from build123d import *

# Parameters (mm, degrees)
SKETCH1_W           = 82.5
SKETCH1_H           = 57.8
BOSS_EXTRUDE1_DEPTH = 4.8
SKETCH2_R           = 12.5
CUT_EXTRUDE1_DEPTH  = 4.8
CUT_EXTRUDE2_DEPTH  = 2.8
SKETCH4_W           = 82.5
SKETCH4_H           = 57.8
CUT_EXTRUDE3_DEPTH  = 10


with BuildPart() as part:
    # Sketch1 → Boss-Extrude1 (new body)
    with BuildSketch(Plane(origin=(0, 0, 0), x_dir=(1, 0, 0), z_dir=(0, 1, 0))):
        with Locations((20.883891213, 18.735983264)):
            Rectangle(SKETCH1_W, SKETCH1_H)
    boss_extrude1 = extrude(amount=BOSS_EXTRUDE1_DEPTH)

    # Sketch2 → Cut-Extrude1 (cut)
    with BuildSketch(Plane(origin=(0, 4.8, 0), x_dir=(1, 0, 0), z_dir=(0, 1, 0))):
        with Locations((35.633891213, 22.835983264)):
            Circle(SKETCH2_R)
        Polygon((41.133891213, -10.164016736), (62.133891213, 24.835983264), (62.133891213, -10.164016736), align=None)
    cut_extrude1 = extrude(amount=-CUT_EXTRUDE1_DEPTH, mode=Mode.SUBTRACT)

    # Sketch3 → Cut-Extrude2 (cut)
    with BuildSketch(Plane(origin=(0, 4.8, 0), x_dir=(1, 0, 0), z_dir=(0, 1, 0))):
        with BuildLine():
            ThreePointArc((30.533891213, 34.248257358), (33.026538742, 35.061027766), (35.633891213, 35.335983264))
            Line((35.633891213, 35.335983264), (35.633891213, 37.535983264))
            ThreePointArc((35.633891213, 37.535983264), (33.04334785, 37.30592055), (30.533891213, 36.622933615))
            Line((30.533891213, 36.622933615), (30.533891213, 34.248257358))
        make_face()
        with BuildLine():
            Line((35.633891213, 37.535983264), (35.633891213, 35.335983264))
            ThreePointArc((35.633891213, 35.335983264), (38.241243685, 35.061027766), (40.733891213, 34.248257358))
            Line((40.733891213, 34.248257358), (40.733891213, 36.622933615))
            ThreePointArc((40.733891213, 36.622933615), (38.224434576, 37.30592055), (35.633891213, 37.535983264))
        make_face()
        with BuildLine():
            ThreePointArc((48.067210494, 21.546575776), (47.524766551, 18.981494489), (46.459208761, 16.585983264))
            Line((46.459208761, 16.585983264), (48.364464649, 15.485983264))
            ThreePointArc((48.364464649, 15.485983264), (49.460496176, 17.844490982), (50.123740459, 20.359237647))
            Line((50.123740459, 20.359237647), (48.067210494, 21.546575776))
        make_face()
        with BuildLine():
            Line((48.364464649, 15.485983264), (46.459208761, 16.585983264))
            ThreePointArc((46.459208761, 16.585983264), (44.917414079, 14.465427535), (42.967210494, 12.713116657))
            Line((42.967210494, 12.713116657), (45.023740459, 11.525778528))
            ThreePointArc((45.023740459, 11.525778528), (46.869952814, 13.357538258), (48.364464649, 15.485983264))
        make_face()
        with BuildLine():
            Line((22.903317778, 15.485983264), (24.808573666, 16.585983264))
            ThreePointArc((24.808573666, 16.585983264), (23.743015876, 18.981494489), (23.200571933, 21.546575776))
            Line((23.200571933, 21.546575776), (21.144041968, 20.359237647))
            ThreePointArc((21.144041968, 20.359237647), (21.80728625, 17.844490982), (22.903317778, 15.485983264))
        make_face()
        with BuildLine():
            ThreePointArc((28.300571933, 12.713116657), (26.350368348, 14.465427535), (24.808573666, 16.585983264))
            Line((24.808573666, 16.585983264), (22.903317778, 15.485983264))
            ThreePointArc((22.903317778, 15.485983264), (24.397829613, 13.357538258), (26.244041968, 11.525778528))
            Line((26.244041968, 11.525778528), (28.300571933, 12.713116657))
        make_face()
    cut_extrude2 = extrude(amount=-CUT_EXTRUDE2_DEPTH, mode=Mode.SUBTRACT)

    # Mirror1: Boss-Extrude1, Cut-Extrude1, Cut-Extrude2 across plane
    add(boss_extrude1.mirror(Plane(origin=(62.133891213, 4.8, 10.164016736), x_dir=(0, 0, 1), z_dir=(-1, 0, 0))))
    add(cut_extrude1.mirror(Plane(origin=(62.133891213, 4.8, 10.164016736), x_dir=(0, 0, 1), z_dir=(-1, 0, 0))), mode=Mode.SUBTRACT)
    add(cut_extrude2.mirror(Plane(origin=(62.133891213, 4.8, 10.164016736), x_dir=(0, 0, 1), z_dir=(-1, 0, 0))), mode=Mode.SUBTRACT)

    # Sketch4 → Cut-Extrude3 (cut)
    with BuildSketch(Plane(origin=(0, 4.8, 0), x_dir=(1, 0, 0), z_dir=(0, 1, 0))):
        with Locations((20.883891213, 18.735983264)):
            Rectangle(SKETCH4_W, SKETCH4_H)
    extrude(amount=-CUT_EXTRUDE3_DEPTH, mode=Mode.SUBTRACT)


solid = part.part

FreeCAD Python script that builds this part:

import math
import FreeCAD as App
import Part
import Sketcher
from FreeCAD import Vector
Q = App.Units.Quantity


def add_polygon(sketch, points):
    """Adds a closed chain of lines whose ends are joined by coincident constraints."""
    first, n = sketch.GeometryCount, len(points)
    for a, b in zip(points, points[1:] + points[:1]):
        sketch.addGeometry(Part.LineSegment(App.Vector(*a, 0), App.Vector(*b, 0)), False)
    for i in range(n):
        sketch.addConstraint(Sketcher.Constraint("Coincident", first + i, 2, first + (i + 1) % n, 1))

doc = App.newDocument("Part")
body = doc.addObject("PartDesign::Body", "Body")

# Sketch on XZ plane
sketch1 = body.newObject("Sketcher::SketchObject", "Sketch")
sketch1.AttachmentSupport = (doc.getObject("XZ_Plane"), [""])
sketch1.MapMode = "FlatFace"
add_polygon(sketch1, [(-20, -48), (-20, 10), (62, 10), (62, -48)])  # lines 0-3
sketch1.addConstraint([
    Sketcher.Constraint("Vertical", 0),
    Sketcher.Constraint("Horizontal", 1),
    Sketcher.Constraint("Vertical", 2),
    Sketcher.Constraint("Horizontal", 3),
    Sketcher.Constraint("DistanceX", 1, 1, 1, 2, 82.5),
    Sketcher.Constraint("DistanceY", 0, 1, 0, 2, 57.8),
    Sketcher.Constraint("DistanceX", 0, 2, -1, 1, 20.366109),
    Sketcher.Constraint("DistanceY", -1, 1, 0, 2, 10.164017),
])
pad1 = body.newObject("PartDesign::Pad", "Pad")
pad1.Profile = sketch1
pad1.Length = 4.8
pad1.Reversed = True

# Sketch on XZ plane
sketch2 = body.newObject("Sketcher::SketchObject", "Sketch001")
sketch2.AttachmentSupport = (doc.getObject("XZ_Plane"), [""])
sketch2.MapMode = "FlatFace"
sketch2.AttachmentOffset = App.Placement(Vector(0, 0, -4.8), App.Rotation())
sketch2.addGeometry(Part.Circle(Vector(36, -23, 0), Vector(0, 0, 1), 12), False)  # 0
add_polygon(sketch2, [(62, -25), (41, 10), (62, 10)])  # lines 1-3
sketch2.addConstraint([
    Sketcher.Constraint("Horizontal", 2),
    Sketcher.Constraint("Vertical", 3),
    Sketcher.Constraint("Diameter", 0, 25.0),
    Sketcher.Constraint("DistanceX", 2, 1, 2, 2, 21.0),
    Sketcher.Constraint("DistanceY", 3, 2, 3, 1, 35.0),
    Sketcher.Constraint("DistanceY", 0, 3, 1, 2, 33.0),
    Sketcher.Constraint("DistanceX", 0, 3, 1, 2, 5.5),
    Sketcher.Constraint("DistanceX", -1, 1, 0, 3, 35.633891),
    Sketcher.Constraint("DistanceY", 0, 3, -1, 1, 22.835983),
])
pocket1 = body.newObject("PartDesign::Pocket", "Pocket")
pocket1.Profile = sketch2
pocket1.Length = 4.8
pocket1.Reversed = True

# Sketch on XZ plane
sketch3 = body.newObject("Sketcher::SketchObject", "Sketch002")
sketch3.AttachmentSupport = (doc.getObject("XZ_Plane"), [""])
sketch3.MapMode = "FlatFace"
sketch3.AttachmentOffset = App.Placement(Vector(0, 0, -4.8), App.Rotation())
sketch3.addGeometry([
    Part.ArcOfCircle(Part.Circle(Vector(35.6, -22.8, 0), Vector(0, 0, 1), 12.5), math.radians(-114), math.radians(-90)),  # 0
    Part.ArcOfCircle(Part.Circle(Vector(35.6, -22.8, 0), Vector(0, 0, 1), 12.5), math.radians(-90), math.radians(-66)),  # 1
    Part.LineSegment(Vector(40.7, -34.2, 0), Vector(40.7, -36.6, 0)),  # 2
    Part.ArcOfCircle(Part.Circle(Vector(35.6, -22.8, 0), Vector(0, 0, 1), 14.7), math.radians(-90), math.radians(-70)),  # 3
    Part.ArcOfCircle(Part.Circle(Vector(35.6, -22.8, 0), Vector(0, 0, 1), 14.7), math.radians(-110), math.radians(-90)),  # 4
    Part.LineSegment(Vector(30.5, -36.6, 0), Vector(30.5, -34.2, 0)),  # 5
    Part.ArcOfCircle(Part.Circle(Vector(35.6, -22.8, 0), Vector(0, 0, 1), 12.5), math.radians(6), math.radians(30)),  # 6
    Part.ArcOfCircle(Part.Circle(Vector(35.6, -22.8, 0), Vector(0, 0, 1), 12.5), math.radians(30), math.radians(54)),  # 7
    Part.LineSegment(Vector(43, -12.7, 0), Vector(45, -11.5, 0)),  # 8
    Part.ArcOfCircle(Part.Circle(Vector(35.6, -22.8, 0), Vector(0, 0, 1), 14.7), math.radians(30), math.radians(50)),  # 9
    Part.ArcOfCircle(Part.Circle(Vector(35.6, -22.8, 0), Vector(0, 0, 1), 14.7), math.radians(10), math.radians(30)),  # 10
    Part.LineSegment(Vector(50.1, -20.4, 0), Vector(48.1, -21.5, 0)),  # 11
    Part.ArcOfCircle(Part.Circle(Vector(35.6, -22.8, 0), Vector(0, 0, 1), 12.5), math.radians(150), math.radians(174)),  # 12
    Part.LineSegment(Vector(23.2, -21.5, 0), Vector(21.1, -20.4, 0)),  # 13
    Part.ArcOfCircle(Part.Circle(Vector(35.6, -22.8, 0), Vector(0, 0, 1), 14.7), math.radians(150), math.radians(170)),  # 14
    Part.ArcOfCircle(Part.Circle(Vector(35.6, -22.8, 0), Vector(0, 0, 1), 14.7), math.radians(130), math.radians(150)),  # 15
    Part.LineSegment(Vector(26.2, -11.5, 0), Vector(28.3, -12.7, 0)),  # 16
    Part.ArcOfCircle(Part.Circle(Vector(35.6, -22.8, 0), Vector(0, 0, 1), 12.5), math.radians(126), math.radians(150)),  # 17
], False)
sketch3.addConstraint([
    Sketcher.Constraint("Tangent", 0, 2, 1, 1),
    Sketcher.Constraint("Coincident", 1, 2, 2, 1),
    Sketcher.Constraint("Coincident", 2, 2, 3, 2),
    Sketcher.Constraint("Tangent", 3, 1, 4, 2),
    Sketcher.Constraint("Coincident", 4, 1, 5, 1),
    Sketcher.Constraint("Coincident", 5, 2, 0, 1),
    Sketcher.Constraint("Tangent", 6, 2, 7, 1),
    Sketcher.Constraint("Coincident", 7, 2, 8, 1),
    Sketcher.Constraint("Coincident", 8, 2, 9, 2),
    Sketcher.Constraint("Tangent", 9, 1, 10, 2),
    Sketcher.Constraint("Coincident", 10, 1, 11, 1),
    Sketcher.Constraint("Coincident", 11, 2, 6, 1),
    Sketcher.Constraint("Coincident", 12, 2, 13, 1),
    Sketcher.Constraint("Coincident", 13, 2, 14, 2),
    Sketcher.Constraint("Tangent", 14, 1, 15, 2),
    Sketcher.Constraint("Coincident", 15, 1, 16, 1),
    Sketcher.Constraint("Coincident", 16, 2, 17, 1),
    Sketcher.Constraint("Tangent", 17, 2, 12, 1),
    Sketcher.Constraint("Vertical", 2),
    Sketcher.Constraint("Vertical", 5),
    Sketcher.Constraint("Coincident", 3, 3, 0, 3),
    Sketcher.Constraint("Coincident", 6, 3, 0, 3),
    Sketcher.Constraint("Coincident", 9, 3, 0, 3),
    Sketcher.Constraint("Coincident", 12, 3, 0, 3),
    Sketcher.Constraint("Coincident", 14, 3, 0, 3),
    Sketcher.Constraint("Equal", 0, 1),
    Sketcher.Constraint("Equal", 3, 4),
    Sketcher.Constraint("Equal", 1, 6),
    Sketcher.Constraint("Equal", 6, 7),
    Sketcher.Constraint("Equal", 4, 9),
    Sketcher.Constraint("Equal", 9, 10),
    Sketcher.Constraint("Equal", 7, 12),
    Sketcher.Constraint("Equal", 10, 14),
    Sketcher.Constraint("Equal", 14, 15),
    Sketcher.Constraint("Equal", 12, 17),
    Sketcher.Constraint("Parallel", 8, 11),
    Sketcher.Constraint("Parallel", 13, 16),
    Sketcher.Constraint("Horizontal", 2, 2, 4, 1),
    Sketcher.Constraint("Horizontal", 11, 2, 12, 2),
    Sketcher.Constraint("Horizontal", 10, 1, 13, 2),
    Sketcher.Constraint("Horizontal", 9, 1, 14, 1),
    Sketcher.Constraint("Horizontal", 8, 2, 15, 1),
    Sketcher.Constraint("Horizontal", 6, 2, 17, 2),
    Sketcher.Constraint("Vertical", 17, 3, 0, 2),
    Sketcher.Constraint("Vertical", 0, 2, 3, 1),
    Sketcher.Constraint("Equal", 8, 11),
    Sketcher.Constraint("Radius", 0, 12.5),
    Sketcher.Constraint("Radius", 3, 14.7),
    Sketcher.Constraint("Angle", 8, Q("30 deg")),
    Sketcher.Constraint("DistanceX", 0, 2, 1, 2, 5.1),
    Sketcher.Constraint("DistanceY", 6, 2, 9, 1, 1.1),
    Sketcher.Constraint("DistanceX", 8, 2, 10, 1, 5.1),
    Sketcher.Constraint("DistanceY", 9, 3, 6, 2, 6.25),
    Sketcher.Constraint("DistanceX", -1, 1, 0, 3, 35.633891),
    Sketcher.Constraint("DistanceY", 8, 2, -1, 1, 11.525779),
])
pocket2 = body.newObject("PartDesign::Pocket", "Pocket001")
pocket2.Profile = sketch3
pocket2.Length = 2.8
pocket2.Reversed = True
doc.recompute()

datumplane = body.newObject("PartDesign::Plane", "DatumPlane")
datumplane.AttachmentSupport = (doc.getObject("YZ_Plane"), [""])
datumplane.MapMode = "FlatFace"
datumplane.AttachmentOffset = App.Placement(Vector(0, 0, 62.133891), App.Rotation())
mirrored = body.newObject("PartDesign::Mirrored", "Mirrored")
mirrored.Originals = [pad1, pocket1, pocket2]
mirrored.MirrorPlane = (datumplane, [""])
body.Tip = mirrored

# Sketch on XZ plane
sketch4 = body.newObject("Sketcher::SketchObject", "Sketch003")
sketch4.AttachmentSupport = (doc.getObject("XZ_Plane"), [""])
sketch4.MapMode = "FlatFace"
sketch4.AttachmentOffset = App.Placement(Vector(0, 0, -4.8), App.Rotation())
add_polygon(sketch4, [(-20, -48), (-20, 10), (62, 10), (62, -48)])  # lines 0-3
sketch4.addConstraint([
    Sketcher.Constraint("Vertical", 0),
    Sketcher.Constraint("Horizontal", 1),
    Sketcher.Constraint("Vertical", 2),
    Sketcher.Constraint("Horizontal", 3),
    Sketcher.Constraint("DistanceX", 1, 1, 1, 2, 82.5),
    Sketcher.Constraint("DistanceY", 0, 1, 0, 2, 57.8),
    Sketcher.Constraint("DistanceX", 0, 2, -1, 1, 20.366109),
    Sketcher.Constraint("DistanceY", -1, 1, 0, 2, 10.164017),
])
pocket3 = body.newObject("PartDesign::Pocket", "Pocket002")
pocket3.Profile = sketch4
pocket3.Length = 10
pocket3.Reversed = True

doc.recompute()
